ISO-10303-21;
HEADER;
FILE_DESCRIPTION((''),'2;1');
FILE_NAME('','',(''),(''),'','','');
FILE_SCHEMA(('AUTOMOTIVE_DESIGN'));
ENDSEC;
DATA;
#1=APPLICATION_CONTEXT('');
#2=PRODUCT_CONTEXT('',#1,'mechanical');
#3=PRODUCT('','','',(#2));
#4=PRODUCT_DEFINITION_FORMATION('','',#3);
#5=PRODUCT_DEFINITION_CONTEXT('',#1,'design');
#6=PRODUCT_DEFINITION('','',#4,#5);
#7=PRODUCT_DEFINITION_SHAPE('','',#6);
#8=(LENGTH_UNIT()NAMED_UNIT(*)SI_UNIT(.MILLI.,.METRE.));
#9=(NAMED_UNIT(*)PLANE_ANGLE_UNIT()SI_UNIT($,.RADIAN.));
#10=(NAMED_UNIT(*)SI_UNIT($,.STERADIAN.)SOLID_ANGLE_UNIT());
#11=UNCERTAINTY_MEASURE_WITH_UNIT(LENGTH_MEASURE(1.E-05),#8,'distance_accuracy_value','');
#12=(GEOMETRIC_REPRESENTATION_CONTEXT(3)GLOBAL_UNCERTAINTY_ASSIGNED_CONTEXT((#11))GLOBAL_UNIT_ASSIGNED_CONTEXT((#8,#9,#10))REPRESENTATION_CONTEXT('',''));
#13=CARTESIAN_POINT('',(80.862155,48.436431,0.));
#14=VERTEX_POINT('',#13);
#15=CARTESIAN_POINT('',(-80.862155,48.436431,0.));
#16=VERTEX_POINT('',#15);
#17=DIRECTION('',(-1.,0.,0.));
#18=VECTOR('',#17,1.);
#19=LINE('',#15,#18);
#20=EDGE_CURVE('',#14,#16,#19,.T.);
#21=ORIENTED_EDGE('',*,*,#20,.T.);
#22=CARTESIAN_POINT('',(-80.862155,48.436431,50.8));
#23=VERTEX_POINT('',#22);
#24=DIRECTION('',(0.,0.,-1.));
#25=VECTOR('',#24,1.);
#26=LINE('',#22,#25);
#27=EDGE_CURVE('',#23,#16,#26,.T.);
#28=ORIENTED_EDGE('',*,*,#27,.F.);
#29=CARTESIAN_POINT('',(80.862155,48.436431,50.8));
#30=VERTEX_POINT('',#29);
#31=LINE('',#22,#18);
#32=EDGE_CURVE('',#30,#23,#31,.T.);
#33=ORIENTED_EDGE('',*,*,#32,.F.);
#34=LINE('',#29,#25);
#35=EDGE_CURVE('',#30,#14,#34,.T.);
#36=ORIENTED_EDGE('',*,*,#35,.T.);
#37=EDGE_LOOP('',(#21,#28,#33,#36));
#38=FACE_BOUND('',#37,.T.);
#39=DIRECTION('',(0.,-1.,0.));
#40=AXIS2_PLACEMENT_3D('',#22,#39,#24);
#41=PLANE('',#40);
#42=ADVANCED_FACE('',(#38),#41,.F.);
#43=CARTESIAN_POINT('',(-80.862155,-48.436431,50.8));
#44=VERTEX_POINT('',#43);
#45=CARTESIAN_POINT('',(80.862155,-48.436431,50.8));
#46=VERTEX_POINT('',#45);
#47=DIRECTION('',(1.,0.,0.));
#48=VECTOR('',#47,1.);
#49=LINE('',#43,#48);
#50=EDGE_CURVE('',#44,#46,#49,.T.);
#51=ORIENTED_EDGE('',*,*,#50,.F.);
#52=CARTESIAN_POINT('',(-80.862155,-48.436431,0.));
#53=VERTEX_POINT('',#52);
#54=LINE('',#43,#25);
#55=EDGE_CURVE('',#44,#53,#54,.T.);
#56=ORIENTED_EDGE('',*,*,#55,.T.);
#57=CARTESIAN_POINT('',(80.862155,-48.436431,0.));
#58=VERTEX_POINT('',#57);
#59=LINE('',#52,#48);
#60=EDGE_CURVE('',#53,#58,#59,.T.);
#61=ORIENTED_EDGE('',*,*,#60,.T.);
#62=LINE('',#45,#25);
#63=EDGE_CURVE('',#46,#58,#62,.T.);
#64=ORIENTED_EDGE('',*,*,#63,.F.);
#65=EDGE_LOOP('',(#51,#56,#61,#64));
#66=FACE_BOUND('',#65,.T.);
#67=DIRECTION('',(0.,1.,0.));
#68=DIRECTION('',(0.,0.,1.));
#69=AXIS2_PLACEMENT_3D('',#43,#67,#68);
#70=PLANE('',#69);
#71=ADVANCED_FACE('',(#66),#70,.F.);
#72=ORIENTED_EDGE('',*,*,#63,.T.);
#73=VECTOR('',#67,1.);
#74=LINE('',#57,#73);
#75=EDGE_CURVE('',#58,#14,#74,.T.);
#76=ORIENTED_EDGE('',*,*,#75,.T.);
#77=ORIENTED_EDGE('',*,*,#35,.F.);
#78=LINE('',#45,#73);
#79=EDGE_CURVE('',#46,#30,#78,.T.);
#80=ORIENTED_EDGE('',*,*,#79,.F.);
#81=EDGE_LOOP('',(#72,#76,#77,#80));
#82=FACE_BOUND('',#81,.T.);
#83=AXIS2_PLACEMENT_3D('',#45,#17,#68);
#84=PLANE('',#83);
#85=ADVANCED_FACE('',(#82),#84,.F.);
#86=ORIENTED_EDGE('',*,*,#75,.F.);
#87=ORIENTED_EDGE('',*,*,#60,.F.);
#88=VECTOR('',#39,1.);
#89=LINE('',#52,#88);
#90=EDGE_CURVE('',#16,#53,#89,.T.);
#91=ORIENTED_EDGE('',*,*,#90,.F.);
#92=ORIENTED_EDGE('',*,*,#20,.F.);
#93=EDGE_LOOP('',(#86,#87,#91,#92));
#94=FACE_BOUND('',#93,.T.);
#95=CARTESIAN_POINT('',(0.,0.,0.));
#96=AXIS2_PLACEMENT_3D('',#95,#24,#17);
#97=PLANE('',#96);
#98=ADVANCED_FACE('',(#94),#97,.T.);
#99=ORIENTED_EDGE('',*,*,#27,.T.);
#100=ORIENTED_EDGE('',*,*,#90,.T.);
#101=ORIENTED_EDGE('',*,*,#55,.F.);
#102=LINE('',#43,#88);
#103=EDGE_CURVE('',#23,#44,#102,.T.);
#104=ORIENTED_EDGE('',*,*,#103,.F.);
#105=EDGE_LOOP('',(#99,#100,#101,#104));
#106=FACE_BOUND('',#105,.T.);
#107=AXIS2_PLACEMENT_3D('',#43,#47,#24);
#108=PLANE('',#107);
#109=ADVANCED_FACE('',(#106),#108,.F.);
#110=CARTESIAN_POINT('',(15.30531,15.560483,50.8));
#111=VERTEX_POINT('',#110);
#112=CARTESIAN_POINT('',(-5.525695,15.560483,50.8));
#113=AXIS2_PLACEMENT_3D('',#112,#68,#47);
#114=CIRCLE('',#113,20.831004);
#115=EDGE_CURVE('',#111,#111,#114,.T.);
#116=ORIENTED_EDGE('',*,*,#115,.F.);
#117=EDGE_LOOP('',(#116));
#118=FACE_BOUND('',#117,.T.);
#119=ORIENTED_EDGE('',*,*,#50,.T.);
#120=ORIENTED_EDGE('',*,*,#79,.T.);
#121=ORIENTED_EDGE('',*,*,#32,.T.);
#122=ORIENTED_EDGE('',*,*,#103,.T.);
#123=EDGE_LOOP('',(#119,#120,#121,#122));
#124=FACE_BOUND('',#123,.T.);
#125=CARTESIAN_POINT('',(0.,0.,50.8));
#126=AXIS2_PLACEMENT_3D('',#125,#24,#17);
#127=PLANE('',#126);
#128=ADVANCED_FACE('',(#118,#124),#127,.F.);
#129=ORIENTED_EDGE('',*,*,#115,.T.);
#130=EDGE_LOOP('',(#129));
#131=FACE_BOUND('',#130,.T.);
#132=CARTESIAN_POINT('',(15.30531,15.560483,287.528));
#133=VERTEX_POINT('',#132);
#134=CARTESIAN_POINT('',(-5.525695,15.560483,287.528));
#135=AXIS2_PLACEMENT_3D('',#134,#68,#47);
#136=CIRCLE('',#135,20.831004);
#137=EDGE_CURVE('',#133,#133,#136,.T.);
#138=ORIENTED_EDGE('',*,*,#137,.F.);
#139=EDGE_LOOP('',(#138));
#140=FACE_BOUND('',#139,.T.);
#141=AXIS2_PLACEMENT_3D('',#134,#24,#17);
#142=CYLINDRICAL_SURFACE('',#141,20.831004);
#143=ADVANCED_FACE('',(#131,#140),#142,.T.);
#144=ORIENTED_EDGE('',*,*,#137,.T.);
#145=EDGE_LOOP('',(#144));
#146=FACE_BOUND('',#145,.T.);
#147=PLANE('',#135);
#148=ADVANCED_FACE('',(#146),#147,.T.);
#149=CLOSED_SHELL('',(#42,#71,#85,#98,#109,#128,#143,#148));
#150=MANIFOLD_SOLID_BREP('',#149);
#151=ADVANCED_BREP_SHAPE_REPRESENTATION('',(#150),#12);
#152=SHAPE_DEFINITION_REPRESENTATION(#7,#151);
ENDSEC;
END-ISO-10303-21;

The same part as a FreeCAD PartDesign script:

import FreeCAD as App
import Part
import Sketcher

V = App.Vector
Q = App.Units.Quantity


def add_polygon(sketch, points):
    """Adds a closed chain of lines whose ends are joined by coincident constraints."""
    first, n = sketch.GeometryCount, len(points)
    for a, b in zip(points, points[1:] + points[:1]):
        sketch.addGeometry(Part.LineSegment(App.Vector(*a, 0), App.Vector(*b, 0)), False)
    for i in range(n):
        sketch.addConstraint(Sketcher.Constraint("Coincident", first + i, 2, first + (i + 1) % n, 1))

doc = App.newDocument("Part")
params = doc.addObject("Spreadsheet::Sheet", "Params")
for row, (alias, value) in enumerate([
    ("pad1_length", "2 in"),
    ("pad2_length", "9.32 in"),
], start=1):
    params.set(f"A{row}", alias)
    params.set(f"B{row}", "=" + value)
    params.setAlias(f"B{row}", alias)

body = doc.addObject("PartDesign::Body", "Body")

# Sketch on XY plane
sketch1 = body.newObject("Sketcher::SketchObject", "Sketch")
sketch1.AttachmentSupport = (doc.getObject("XY_Plane"), [""])
sketch1.MapMode = "FlatFace"
add_polygon(sketch1, [(-81, 48), (-81, -48), (81, -48), (81, 48)])  # lines 0-3
sketch1.addConstraint([
    Sketcher.Constraint("Vertical", 0),
    Sketcher.Constraint("Horizontal", 1),
    Sketcher.Constraint("Vertical", 2),
    Sketcher.Constraint("Horizontal", 3),
    Sketcher.Constraint("Symmetric", 0, 2, 2, 2, -1, 1),
    Sketcher.Constraint("DistanceX", 1, 1, 1, 2, Q("161.724311 mm")),
    Sketcher.Constraint("DistanceY", 0, 2, 0, 1, Q("96.872862 mm")),
])
pad1 = body.newObject("PartDesign::Pad", "Pad")
pad1.Profile = sketch1
pad1.setExpression("Length", "Params.pad1_length")

# Sketch on XY plane
sketch2 = body.newObject("Sketcher::SketchObject", "Sketch001")
sketch2.AttachmentSupport = (doc.getObject("XY_Plane"), [""])
sketch2.MapMode = "FlatFace"
sketch2.AttachmentOffset = App.Placement(V(0, 0, 2 * 25.4), App.Rotation())
sketch2.addGeometry(Part.Circle(V(-6, 16, 0), V(0, 0, 1), 21), False)
sketch2.addConstraint([
    Sketcher.Constraint("Diameter", 0, Q("41.662009 mm")),
    Sketcher.Constraint("DistanceX", 0, 3, -1, 1, Q("5.525695 mm")),
    Sketcher.Constraint("DistanceY", -1, 1, 0, 3, Q("15.560483 mm")),
])
pad2 = body.newObject("PartDesign::Pad", "Pad001")
pad2.Profile = sketch2
pad2.setExpression("Length", "Params.pad2_length")

doc.recompute()
